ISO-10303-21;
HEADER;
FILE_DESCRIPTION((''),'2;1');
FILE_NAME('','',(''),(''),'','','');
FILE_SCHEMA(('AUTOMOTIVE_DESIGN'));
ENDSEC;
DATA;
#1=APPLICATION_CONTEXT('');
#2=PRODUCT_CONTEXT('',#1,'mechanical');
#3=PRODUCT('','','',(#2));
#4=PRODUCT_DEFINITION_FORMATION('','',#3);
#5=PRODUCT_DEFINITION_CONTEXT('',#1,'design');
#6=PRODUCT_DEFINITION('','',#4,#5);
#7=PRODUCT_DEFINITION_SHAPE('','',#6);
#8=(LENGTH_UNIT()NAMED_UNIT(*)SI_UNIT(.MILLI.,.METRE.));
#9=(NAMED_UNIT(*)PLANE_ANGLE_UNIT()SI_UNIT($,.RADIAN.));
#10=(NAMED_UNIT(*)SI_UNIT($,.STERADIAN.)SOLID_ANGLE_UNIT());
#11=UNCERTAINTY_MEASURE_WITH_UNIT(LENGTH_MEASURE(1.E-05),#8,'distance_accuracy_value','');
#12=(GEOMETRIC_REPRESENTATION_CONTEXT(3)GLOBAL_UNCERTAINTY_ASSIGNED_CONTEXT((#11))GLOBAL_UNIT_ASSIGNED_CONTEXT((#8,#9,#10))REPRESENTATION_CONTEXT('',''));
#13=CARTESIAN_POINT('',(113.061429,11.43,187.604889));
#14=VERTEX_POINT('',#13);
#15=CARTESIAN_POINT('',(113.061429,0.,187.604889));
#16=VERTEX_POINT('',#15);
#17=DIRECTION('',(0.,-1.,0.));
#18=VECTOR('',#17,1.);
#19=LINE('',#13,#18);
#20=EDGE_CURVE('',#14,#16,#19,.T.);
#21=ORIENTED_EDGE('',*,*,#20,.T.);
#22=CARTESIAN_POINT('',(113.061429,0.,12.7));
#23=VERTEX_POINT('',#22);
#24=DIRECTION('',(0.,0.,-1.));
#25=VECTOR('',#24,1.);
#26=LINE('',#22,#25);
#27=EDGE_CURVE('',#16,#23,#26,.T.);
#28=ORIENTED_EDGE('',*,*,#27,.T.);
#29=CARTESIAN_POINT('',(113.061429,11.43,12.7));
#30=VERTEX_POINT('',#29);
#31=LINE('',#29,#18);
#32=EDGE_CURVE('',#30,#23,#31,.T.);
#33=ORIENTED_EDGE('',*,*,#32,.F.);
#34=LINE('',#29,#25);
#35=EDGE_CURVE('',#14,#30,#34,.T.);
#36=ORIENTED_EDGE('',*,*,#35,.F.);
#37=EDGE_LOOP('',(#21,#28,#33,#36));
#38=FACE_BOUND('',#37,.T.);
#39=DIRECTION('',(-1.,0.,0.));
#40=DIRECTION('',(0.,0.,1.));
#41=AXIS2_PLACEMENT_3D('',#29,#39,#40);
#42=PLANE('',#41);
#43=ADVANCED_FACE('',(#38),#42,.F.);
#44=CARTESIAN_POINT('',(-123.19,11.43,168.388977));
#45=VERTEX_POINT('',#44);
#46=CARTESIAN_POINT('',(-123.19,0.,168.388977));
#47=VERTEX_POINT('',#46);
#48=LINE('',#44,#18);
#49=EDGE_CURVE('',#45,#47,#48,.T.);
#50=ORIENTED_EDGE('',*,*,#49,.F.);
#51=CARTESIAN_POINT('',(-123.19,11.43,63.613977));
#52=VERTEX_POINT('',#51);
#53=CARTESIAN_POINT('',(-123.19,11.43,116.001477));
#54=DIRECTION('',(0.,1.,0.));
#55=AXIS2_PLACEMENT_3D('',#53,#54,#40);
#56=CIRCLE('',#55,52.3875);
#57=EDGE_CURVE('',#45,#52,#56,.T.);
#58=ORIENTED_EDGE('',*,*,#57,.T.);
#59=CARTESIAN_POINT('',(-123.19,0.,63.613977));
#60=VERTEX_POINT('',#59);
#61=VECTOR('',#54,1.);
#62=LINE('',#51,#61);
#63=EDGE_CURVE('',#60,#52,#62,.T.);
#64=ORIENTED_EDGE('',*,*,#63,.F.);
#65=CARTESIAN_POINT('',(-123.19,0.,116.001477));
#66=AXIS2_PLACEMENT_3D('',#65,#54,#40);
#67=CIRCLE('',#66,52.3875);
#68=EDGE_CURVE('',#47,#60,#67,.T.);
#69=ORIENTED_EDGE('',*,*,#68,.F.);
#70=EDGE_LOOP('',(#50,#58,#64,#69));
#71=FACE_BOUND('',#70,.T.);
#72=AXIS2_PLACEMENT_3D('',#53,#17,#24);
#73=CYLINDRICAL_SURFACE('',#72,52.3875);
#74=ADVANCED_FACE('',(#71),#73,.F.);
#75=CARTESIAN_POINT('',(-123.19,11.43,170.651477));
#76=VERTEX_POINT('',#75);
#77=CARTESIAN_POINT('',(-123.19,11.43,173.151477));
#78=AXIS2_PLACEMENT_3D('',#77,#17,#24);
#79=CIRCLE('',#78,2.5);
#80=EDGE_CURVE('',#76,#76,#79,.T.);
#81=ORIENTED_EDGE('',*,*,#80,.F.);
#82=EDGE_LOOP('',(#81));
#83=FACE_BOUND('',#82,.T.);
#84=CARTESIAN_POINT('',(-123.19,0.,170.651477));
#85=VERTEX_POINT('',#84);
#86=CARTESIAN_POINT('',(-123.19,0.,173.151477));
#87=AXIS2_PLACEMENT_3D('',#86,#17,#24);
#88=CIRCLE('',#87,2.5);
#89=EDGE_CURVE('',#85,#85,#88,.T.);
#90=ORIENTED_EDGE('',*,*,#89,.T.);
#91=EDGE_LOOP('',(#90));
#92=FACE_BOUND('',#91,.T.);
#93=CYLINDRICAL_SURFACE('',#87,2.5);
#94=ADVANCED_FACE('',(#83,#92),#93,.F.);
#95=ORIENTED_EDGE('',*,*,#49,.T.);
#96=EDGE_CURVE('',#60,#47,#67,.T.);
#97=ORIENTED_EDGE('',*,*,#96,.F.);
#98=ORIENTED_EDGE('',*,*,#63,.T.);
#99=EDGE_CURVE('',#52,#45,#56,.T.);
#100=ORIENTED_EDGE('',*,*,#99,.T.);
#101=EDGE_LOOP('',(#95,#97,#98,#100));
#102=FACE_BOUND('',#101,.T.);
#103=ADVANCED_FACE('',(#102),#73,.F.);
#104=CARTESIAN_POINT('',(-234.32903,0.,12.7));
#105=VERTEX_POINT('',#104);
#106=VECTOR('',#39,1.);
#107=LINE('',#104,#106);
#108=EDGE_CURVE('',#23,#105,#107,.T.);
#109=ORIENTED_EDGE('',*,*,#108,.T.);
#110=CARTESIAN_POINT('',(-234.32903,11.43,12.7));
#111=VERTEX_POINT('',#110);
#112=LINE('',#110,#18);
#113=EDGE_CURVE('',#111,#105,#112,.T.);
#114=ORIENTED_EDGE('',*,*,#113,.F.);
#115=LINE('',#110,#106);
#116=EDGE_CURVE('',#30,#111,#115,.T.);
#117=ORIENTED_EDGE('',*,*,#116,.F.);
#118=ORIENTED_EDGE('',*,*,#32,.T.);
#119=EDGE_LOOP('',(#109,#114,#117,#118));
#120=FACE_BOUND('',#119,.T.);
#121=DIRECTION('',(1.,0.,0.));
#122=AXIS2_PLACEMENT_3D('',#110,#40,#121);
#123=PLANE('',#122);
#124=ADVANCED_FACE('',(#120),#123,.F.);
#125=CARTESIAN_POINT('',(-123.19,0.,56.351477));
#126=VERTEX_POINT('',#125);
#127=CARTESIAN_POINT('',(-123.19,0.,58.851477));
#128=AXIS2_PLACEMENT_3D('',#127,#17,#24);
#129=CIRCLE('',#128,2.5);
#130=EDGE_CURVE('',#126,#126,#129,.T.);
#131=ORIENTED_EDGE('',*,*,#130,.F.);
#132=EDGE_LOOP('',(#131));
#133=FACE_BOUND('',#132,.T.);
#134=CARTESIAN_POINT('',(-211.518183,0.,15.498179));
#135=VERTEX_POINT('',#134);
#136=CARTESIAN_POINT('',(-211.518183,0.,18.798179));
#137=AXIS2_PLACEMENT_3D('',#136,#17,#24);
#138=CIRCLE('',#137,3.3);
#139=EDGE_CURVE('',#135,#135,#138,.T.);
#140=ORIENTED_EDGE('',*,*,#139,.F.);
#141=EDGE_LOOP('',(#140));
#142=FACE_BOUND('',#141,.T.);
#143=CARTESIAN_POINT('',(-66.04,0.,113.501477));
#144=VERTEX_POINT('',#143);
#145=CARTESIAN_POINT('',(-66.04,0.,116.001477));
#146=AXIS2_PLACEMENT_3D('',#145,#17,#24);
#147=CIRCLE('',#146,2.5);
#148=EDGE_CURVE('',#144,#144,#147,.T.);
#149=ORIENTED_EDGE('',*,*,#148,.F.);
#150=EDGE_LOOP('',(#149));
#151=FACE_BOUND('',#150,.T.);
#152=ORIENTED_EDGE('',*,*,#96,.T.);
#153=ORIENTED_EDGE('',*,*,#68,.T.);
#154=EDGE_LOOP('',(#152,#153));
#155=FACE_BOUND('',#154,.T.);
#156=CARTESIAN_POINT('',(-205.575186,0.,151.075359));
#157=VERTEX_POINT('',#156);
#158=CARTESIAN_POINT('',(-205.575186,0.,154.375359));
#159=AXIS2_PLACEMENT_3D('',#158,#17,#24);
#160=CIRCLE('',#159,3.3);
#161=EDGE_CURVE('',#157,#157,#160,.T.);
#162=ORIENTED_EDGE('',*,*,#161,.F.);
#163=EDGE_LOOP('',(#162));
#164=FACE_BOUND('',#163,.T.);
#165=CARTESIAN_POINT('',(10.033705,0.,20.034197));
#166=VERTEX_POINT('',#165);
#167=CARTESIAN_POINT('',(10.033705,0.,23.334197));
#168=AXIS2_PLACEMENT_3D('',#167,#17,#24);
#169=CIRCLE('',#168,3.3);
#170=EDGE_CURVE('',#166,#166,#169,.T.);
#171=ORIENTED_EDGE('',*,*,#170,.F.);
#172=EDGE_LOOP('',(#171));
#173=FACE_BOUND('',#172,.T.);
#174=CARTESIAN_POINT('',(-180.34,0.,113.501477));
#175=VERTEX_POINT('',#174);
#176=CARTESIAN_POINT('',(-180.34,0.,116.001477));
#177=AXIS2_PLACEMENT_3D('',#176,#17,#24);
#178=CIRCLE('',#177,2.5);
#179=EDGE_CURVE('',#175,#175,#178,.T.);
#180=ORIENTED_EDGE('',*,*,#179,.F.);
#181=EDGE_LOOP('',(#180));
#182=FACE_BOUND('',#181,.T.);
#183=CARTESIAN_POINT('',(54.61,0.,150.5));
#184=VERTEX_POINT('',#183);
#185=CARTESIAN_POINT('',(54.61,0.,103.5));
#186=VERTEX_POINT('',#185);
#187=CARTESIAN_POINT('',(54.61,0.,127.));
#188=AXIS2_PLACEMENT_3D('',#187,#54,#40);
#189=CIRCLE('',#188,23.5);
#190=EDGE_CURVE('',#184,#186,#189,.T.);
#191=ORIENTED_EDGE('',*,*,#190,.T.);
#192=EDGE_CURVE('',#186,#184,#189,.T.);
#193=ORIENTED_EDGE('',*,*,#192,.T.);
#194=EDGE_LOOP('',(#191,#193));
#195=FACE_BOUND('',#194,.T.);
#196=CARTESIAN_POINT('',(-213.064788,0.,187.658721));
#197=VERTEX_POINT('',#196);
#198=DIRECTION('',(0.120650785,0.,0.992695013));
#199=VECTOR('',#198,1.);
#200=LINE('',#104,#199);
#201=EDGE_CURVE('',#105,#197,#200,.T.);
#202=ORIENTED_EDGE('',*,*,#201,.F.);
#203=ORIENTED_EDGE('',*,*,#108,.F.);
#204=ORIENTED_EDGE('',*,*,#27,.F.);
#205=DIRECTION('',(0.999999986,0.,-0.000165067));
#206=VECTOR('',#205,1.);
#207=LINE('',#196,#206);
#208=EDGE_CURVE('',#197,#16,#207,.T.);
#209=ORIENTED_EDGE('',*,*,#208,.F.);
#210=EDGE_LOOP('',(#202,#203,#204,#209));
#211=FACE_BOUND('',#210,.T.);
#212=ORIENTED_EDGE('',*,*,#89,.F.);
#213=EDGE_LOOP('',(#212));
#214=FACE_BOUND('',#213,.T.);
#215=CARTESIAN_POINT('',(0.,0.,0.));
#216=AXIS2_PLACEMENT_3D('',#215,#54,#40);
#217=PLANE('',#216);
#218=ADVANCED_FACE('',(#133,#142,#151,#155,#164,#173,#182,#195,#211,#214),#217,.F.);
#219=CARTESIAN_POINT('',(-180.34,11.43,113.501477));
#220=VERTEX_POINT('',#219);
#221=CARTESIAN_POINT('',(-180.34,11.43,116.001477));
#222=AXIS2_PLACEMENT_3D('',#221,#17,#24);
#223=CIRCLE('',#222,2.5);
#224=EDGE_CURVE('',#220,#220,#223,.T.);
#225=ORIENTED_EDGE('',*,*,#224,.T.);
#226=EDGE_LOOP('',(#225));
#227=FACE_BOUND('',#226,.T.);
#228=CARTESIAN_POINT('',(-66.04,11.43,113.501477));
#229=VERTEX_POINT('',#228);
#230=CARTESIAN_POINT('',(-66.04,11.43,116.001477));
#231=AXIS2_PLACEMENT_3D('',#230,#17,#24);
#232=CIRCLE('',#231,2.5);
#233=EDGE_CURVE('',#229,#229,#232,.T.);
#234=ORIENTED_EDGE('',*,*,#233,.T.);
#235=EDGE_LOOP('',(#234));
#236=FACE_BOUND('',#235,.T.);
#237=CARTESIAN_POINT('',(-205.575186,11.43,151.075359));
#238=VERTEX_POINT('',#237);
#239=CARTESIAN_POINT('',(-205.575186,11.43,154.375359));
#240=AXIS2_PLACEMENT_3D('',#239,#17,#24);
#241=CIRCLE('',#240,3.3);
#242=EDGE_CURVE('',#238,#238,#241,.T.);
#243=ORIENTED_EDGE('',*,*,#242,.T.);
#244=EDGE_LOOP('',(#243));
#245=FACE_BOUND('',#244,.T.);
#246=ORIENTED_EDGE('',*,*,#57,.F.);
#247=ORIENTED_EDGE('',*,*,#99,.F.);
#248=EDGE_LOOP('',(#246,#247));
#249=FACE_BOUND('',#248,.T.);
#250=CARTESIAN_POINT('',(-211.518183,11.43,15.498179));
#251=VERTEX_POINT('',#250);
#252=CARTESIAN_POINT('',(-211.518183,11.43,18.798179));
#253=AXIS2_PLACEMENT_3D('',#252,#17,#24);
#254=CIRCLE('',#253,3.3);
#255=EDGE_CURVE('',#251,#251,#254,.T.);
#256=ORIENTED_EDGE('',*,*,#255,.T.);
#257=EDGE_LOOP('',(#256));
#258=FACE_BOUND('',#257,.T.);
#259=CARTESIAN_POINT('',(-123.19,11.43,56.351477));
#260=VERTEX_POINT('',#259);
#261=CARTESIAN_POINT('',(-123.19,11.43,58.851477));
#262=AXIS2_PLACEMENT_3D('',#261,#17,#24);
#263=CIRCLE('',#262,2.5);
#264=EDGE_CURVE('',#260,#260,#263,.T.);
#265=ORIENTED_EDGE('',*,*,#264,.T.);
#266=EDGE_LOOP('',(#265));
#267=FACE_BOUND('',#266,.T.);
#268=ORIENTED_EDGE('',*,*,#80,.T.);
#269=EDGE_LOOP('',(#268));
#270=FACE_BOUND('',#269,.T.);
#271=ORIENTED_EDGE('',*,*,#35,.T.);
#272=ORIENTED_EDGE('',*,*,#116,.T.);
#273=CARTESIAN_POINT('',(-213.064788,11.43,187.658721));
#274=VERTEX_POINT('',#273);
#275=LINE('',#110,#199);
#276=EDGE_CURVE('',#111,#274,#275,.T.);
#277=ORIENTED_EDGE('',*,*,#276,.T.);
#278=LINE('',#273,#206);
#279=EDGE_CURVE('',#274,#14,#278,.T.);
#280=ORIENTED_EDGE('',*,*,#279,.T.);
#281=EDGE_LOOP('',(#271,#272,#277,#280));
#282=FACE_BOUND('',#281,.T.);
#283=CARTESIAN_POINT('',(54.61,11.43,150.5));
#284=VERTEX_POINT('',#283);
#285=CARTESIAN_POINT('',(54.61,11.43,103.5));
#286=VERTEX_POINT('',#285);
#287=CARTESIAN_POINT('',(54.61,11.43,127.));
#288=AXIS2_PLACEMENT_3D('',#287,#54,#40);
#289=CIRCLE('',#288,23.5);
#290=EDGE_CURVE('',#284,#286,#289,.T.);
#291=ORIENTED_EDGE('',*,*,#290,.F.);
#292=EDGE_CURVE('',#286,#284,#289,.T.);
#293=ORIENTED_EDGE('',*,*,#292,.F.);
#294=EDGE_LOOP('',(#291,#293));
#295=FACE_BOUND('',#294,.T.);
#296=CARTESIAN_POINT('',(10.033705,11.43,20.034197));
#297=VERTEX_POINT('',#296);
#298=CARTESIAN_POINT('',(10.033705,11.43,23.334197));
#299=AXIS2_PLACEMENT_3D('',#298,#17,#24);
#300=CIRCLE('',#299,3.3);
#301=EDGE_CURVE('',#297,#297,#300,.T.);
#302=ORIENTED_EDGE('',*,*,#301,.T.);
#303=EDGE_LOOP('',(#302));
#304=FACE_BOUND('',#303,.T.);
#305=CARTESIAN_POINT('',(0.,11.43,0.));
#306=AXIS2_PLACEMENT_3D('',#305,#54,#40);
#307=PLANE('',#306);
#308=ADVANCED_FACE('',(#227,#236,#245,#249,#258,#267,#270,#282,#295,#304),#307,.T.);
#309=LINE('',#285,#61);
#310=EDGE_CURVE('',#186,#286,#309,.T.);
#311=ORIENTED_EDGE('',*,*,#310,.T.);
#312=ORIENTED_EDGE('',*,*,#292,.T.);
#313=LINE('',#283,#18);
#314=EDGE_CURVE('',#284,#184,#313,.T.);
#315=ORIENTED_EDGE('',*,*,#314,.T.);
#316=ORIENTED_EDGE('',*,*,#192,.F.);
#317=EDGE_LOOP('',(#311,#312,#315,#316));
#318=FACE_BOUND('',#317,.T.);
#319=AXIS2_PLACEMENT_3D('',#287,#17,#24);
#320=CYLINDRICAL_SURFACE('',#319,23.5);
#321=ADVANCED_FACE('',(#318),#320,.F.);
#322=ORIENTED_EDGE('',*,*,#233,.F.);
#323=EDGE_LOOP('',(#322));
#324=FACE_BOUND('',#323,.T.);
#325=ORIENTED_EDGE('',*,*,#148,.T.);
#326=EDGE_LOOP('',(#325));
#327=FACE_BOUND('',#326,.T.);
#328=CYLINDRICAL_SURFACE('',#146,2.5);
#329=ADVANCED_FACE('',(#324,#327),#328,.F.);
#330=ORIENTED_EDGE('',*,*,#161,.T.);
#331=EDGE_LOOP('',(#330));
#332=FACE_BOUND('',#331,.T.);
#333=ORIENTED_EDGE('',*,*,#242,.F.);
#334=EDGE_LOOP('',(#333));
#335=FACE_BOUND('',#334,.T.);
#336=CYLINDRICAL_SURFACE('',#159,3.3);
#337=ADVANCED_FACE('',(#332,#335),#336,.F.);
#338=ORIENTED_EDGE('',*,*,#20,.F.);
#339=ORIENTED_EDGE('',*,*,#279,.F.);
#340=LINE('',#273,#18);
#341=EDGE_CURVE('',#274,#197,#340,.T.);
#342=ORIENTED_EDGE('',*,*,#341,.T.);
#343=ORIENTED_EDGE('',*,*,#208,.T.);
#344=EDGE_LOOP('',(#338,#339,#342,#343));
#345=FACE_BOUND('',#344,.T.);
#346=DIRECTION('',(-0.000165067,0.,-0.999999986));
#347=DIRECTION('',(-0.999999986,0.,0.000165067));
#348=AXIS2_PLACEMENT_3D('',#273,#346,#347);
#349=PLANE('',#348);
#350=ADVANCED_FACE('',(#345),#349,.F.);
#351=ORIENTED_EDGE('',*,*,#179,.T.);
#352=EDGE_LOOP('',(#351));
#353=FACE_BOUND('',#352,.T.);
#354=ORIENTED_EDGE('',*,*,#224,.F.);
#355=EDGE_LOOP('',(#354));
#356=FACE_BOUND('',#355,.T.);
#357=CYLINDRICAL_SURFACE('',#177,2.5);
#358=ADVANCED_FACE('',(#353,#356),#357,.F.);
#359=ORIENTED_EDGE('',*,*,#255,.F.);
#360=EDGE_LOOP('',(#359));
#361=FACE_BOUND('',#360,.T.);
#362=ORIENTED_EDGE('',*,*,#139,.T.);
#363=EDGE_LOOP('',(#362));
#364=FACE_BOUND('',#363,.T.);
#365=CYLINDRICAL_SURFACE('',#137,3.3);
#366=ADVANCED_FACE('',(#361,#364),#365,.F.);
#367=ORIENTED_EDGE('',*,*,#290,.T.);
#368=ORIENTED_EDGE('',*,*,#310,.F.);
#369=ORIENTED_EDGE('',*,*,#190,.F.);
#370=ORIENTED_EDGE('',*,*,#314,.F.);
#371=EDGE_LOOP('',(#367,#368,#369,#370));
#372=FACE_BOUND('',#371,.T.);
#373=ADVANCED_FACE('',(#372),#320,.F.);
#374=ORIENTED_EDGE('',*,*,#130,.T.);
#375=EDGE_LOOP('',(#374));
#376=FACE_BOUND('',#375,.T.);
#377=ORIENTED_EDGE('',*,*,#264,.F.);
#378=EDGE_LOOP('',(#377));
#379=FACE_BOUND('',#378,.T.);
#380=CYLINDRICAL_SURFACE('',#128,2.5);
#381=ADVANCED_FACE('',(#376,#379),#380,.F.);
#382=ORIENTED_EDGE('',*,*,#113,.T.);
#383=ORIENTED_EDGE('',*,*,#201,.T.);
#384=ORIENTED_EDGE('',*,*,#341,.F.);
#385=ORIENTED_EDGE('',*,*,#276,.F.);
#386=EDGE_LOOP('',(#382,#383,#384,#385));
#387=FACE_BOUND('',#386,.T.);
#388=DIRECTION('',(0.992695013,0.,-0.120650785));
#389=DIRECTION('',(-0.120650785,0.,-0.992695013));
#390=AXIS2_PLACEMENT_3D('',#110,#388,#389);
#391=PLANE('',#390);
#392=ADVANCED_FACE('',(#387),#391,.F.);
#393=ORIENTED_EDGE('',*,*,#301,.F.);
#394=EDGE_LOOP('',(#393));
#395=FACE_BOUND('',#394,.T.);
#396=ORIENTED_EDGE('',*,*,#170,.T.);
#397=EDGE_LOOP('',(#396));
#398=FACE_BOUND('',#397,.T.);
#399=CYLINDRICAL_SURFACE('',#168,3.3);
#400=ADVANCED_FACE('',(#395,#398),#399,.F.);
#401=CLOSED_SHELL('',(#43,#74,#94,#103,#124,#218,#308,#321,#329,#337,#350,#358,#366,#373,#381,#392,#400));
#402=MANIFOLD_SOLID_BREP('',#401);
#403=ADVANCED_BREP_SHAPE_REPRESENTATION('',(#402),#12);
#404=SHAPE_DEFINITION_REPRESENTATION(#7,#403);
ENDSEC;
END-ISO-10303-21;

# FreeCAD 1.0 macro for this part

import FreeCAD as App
import Part
import Sketcher
from FreeCAD import Vector
Q = App.Units.Quantity

doc = App.newDocument("Part")
body = doc.addObject("PartDesign::Body", "Body")

# Sketch on XZ plane
sketch1 = doc.addObject("Sketcher::SketchObject", "Sketch")
body.addObject(sketch1)
sketch1.AttachmentSupport = (doc.XZ_Plane, [""])
sketch1.MapMode = "FlatFace"
sketch1.addGeometry([
    Part.LineSegment(Vector(113.061429, 12.7, 0), Vector(-234.32903, 12.7, 0)),  # 0
    Part.LineSegment(Vector(-234.32903, 12.7, 0), Vector(-213.064788, 187.658721, 0)),  # 1
    Part.LineSegment(Vector(-213.064788, 187.658721, 0), Vector(113.061429, 187.604889, 0)),  # 2
    Part.LineSegment(Vector(113.061429, 187.604889, 0), Vector(113.061429, 12.7, 0)),  # 3
    Part.Circle(Vector(54.61, 127, 0), Vector(0, 0, 1), 23.5),  # 4
    Part.Circle(Vector(-123.19, 116.001477, 0), Vector(0, 0, 1), 52.3875),  # 5
], False)
sketch1.addConstraint([
    Sketcher.Constraint("Coincident", 0, 2, 1, 1),
    Sketcher.Constraint("Coincident", 1, 2, 2, 1),
    Sketcher.Constraint("Coincident", 2, 2, 3, 1),
    Sketcher.Constraint("Coincident", 3, 2, 0, 1),
    Sketcher.Constraint("Horizontal", 0),
    Sketcher.Constraint("Vertical", 3),
    Sketcher.Constraint("Diameter", 4, Q("47 mm")),
    Sketcher.Constraint("Diameter", 5, Q("104.775 mm")),
    Sketcher.Constraint("DistanceY", -1, 1, 4, 3, Q("127 mm")),
    Sketcher.Constraint("DistanceY", -1, 1, 0, 2, Q("12.7 mm")),
    Sketcher.Constraint("DistanceX", 5, 3, 4, 3, Q("177.8 mm")),
    Sketcher.Constraint("DistanceX", -1, 1, 4, 3, Q("54.61 mm")),
    Sketcher.Constraint("DistanceX", 0, 2, 0, 1, Q("347.390459 mm")),
    Sketcher.Constraint("DistanceY", 3, 2, 3, 1, Q("174.904889 mm")),
    Sketcher.Constraint("Distance", 2, Q("326.126221 mm")),
    Sketcher.Constraint("DistanceX", 0, 2, -1, 1, Q("234.32903 mm")),
    Sketcher.Constraint("DistanceY", -1, 1, 1, 2, Q("187.658721 mm")),
    Sketcher.Constraint("DistanceY", 5, 3, 2, 2, Q("71.603412 mm")),
])
pad1 = doc.addObject("PartDesign::Pad", "Pad")
body.addObject(pad1)
pad1.Profile = sketch1
pad1.Length = 11.43
pad1.Reversed = True

# Sketch on XZ plane
sketch2 = doc.addObject("Sketcher::SketchObject", "Sketch001")
body.addObject(sketch2)
sketch2.AttachmentSupport = (doc.XZ_Plane, [""])
sketch2.MapMode = "FlatFace"
sketch2.addGeometry([
    Part.Circle(Vector(10.033705, 23.334197, 0), Vector(0, 0, 1), 3.3),
    Part.Circle(Vector(-211.518183, 18.798179, 0), Vector(0, 0, 1), 3.3),
    Part.Circle(Vector(-205.575186, 154.375359, 0), Vector(0, 0, 1), 3.3),
], False)
sketch2.addConstraint([
    Sketcher.Constraint("Equal", 0, 1),
    Sketcher.Constraint("Equal", 1, 2),
    Sketcher.Constraint("Diameter", 0, Q("6.6 mm")),
    Sketcher.Constraint("DistanceY", -1, 1, 1, 3, Q("18.798179 mm")),
    Sketcher.Constraint("DistanceY", -1, 1, 2, 3, Q("154.375359 mm")),
    Sketcher.Constraint("DistanceY", 1, 3, 0, 3, Q("4.536019 mm")),
    Sketcher.Constraint("DistanceX", 2, 3, 0, 3, Q("215.60889 mm")),
    Sketcher.Constraint("DistanceX", -1, 1, 0, 3, Q("10.033705 mm")),
    Sketcher.Constraint("DistanceX", 1, 3, -1, 1, Q("211.518183 mm")),
])
doc.recompute()
hole = doc.addObject("PartDesign::Hole", "Hole")
body.addObject(hole)
hole.Profile = sketch2
hole.ThreadType = "None"
hole.Diameter = 6.6
hole.DepthType = "ThroughAll"

# Sketch on XZ plane
sketch3 = doc.addObject("Sketcher::SketchObject", "Sketch002")
body.addObject(sketch3)
sketch3.AttachmentSupport = (doc.XZ_Plane, [""])
sketch3.MapMode = "FlatFace"
sketch3.addGeometry(Part.Circle(Vector(-123.19, 173.151477, 0), Vector(0, 0, 1), 2.5), False)
sketch3.addConstraint([
    Sketcher.Constraint("Diameter", 0, Q("5 mm")),
    Sketcher.Constraint("DistanceX", 0, 3, -1, 1, Q("123.19 mm")),
    Sketcher.Constraint("DistanceY", -1, 1, 0, 3, Q("173.151477 mm")),
])
doc.recompute()
hole2 = doc.addObject("PartDesign::Hole", "Hole001")
body.addObject(hole2)
hole2.Profile = sketch3
hole2.ThreadType = "None"
hole2.Diameter = 5
hole2.DepthType = "ThroughAll"
doc.recompute()

datumline = doc.addObject("PartDesign::Line", "DatumLine")
body.addObject(datumline)
datumline.Placement = App.Placement(Vector(-123.19, 0, 116.001477), App.Rotation(Vector(0, 0, 1), Vector(0, 1, 0)))
polarpattern = doc.addObject("PartDesign::PolarPattern", "PolarPattern")
body.addObject(polarpattern)
polarpattern.Originals = [hole2]
polarpattern.Axis = (datumline, [""])
polarpattern.Angle = 360
polarpattern.Occurrences = 4
body.Tip = polarpattern

doc.recompute()
